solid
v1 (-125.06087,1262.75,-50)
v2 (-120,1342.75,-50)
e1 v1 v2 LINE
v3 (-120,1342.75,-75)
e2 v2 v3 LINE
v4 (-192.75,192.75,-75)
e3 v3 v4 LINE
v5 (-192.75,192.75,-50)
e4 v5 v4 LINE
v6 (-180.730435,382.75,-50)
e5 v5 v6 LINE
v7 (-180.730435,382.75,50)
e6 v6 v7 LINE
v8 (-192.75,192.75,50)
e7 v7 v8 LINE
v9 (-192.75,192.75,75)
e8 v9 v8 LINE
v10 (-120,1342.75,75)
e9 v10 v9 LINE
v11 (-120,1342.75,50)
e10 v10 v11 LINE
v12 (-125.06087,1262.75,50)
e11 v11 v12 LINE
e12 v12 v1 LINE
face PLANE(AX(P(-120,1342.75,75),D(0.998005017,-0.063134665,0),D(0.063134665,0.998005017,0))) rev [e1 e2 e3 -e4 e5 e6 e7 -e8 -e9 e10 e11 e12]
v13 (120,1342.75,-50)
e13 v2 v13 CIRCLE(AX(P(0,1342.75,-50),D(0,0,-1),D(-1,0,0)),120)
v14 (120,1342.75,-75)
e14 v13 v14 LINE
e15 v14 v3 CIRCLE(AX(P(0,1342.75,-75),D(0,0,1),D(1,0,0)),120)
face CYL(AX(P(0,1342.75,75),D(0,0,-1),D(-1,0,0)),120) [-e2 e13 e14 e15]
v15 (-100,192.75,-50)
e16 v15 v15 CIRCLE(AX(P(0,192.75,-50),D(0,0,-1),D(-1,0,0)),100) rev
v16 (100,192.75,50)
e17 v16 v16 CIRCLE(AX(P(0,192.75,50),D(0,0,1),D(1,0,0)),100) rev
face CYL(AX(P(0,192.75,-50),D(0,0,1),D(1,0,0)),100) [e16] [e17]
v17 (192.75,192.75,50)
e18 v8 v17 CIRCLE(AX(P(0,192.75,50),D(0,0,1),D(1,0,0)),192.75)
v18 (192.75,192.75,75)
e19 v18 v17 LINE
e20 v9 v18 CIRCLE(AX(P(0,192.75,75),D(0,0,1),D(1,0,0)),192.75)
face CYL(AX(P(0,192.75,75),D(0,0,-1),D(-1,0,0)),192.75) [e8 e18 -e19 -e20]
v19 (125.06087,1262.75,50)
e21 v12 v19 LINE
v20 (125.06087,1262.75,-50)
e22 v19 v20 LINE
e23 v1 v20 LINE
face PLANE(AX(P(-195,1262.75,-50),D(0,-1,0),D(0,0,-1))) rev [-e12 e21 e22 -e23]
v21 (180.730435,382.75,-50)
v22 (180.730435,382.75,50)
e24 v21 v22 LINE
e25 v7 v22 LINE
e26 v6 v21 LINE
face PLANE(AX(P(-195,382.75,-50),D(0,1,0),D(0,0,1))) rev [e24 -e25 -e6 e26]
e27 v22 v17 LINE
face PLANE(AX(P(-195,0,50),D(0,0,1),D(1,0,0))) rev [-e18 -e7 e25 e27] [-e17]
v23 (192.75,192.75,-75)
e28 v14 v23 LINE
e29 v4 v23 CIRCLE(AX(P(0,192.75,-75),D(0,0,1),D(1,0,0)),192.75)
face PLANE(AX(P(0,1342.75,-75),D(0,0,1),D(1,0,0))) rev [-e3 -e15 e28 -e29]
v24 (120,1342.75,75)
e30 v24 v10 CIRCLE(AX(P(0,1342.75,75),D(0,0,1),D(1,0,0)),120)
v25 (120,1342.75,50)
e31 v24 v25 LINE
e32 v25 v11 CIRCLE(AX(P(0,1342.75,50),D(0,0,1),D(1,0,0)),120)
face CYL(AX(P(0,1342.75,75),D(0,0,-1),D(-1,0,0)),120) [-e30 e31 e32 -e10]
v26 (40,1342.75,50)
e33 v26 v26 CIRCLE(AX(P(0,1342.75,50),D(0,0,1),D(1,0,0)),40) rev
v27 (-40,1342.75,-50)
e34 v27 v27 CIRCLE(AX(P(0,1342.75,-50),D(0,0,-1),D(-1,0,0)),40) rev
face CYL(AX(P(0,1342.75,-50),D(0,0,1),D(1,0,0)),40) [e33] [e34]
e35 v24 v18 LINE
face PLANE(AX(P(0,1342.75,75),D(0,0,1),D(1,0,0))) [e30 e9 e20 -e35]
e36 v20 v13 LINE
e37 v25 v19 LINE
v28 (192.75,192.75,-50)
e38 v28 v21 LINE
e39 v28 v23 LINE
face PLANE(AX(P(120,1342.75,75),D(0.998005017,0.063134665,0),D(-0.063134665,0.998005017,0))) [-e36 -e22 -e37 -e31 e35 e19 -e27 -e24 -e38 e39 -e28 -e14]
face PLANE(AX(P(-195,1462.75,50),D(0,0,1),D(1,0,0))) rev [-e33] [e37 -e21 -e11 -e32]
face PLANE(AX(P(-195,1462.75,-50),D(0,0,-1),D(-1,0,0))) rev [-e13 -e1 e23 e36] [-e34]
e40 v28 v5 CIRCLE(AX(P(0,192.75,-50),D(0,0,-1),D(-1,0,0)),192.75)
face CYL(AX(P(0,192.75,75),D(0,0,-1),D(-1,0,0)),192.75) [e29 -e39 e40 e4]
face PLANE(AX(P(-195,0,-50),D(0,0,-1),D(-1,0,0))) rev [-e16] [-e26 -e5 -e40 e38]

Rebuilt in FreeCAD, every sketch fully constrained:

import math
import FreeCAD as App
import Part
import Sketcher
Q = App.Units.Quantity

doc = App.newDocument("Part")
body = doc.addObject("PartDesign::Body", "Body")

# Sketch on XY plane
sketch1 = body.newObject("Sketcher::SketchObject", "Sketch")
sketch1.AttachmentSupport = (doc.getObject("XY_Plane"), [""])
sketch1.MapMode = "FlatFace"
sketch1.addGeometry(Part.LineSegment(App.Vector(193, 193, 0), App.Vector(120, 1343, 0)), False)
sketch1.addGeometry(Part.ArcOfCircle(Part.Circle(App.Vector(0, 1343, 0), App.Vector(0, 0, 1), 120), math.radians(0), math.radians(180)), False)
sketch1.addGeometry(Part.LineSegment(App.Vector(-120, 1343, 0), App.Vector(-193, 193, 0)), False)
sketch1.addGeometry(Part.ArcOfCircle(Part.Circle(App.Vector(0, 193, 0), App.Vector(0, 0, 1), 193), math.radians(180), math.radians(360)), False)
sketch1.addConstraint(Sketcher.Constraint("Coincident", 0, 2, 1, 1))
sketch1.addConstraint(Sketcher.Constraint("Coincident", 1, 2, 2, 1))
sketch1.addConstraint(Sketcher.Constraint("Coincident", 2, 2, 3, 1))
sketch1.addConstraint(Sketcher.Constraint("Coincident", 3, 2, 0, 1))
sketch1.addConstraint(Sketcher.Constraint("Symmetric", 0, 2, 1, 2, -2))
sketch1.addConstraint(Sketcher.Constraint("Symmetric", 2, 2, 3, 2, -2))
sketch1.addConstraint(Sketcher.Constraint("Horizontal", 1, 3, 0, 2))
sketch1.addConstraint(Sketcher.Constraint("Horizontal", 3, 3, 2, 2))
sketch1.addConstraint(Sketcher.Constraint("Radius", 1, Q("120 mm")))
sketch1.addConstraint(Sketcher.Constraint("Radius", 3, Q("192.75 mm")))
sketch1.addConstraint(Sketcher.Constraint("DistanceY", 3, 3, 1, 3, Q("1150 mm")))
sketch1.addConstraint(Sketcher.Constraint("DistanceY", -1, 1, 1, 3, Q("1342.75 mm")))
pad1 = body.newObject("PartDesign::Pad", "Pad")
pad1.Profile = sketch1
pad1.Length = 150
pad1.Midplane = True

# Sketch on YZ plane
sketch2 = body.newObject("Sketcher::SketchObject", "Sketch001")
sketch2.AttachmentSupport = (doc.getObject("YZ_Plane"), [""])
sketch2.MapMode = "FlatFace"
sketch2.addGeometry(Part.LineSegment(App.Vector(383, 50, 0), App.Vector(0, 50, 0)), False)
sketch2.addGeometry(Part.LineSegment(App.Vector(0, 50, 0), App.Vector(0, -50, 0)), False)
sketch2.addGeometry(Part.LineSegment(App.Vector(0, -50, 0), App.Vector(383, -50, 0)), False)
sketch2.addGeometry(Part.LineSegment(App.Vector(383, -50, 0), App.Vector(383, 50, 0)), False)
sketch2.addGeometry(Part.LineSegment(App.Vector(1463, 50, 0), App.Vector(1263, 50, 0)), False)
sketch2.addGeometry(Part.LineSegment(App.Vector(1263, 50, 0), App.Vector(1263, -50, 0)), False)
sketch2.addGeometry(Part.LineSegment(App.Vector(1263, -50, 0), App.Vector(1463, -50, 0)), False)
sketch2.addGeometry(Part.LineSegment(App.Vector(1463, -50, 0), App.Vector(1463, 50, 0)), False)
sketch2.addConstraint(Sketcher.Constraint("Coincident", 0, 2, 1, 1))
sketch2.addConstraint(Sketcher.Constraint("Coincident", 1, 2, 2, 1))
sketch2.addConstraint(Sketcher.Constraint("Coincident", 2, 2, 3, 1))
sketch2.addConstraint(Sketcher.Constraint("Coincident", 3, 2, 0, 1))
sketch2.addConstraint(Sketcher.Constraint("Coincident", 4, 2, 5, 1))
sketch2.addConstraint(Sketcher.Constraint("Coincident", 5, 2, 6, 1))
sketch2.addConstraint(Sketcher.Constraint("Coincident", 6, 2, 7, 1))
sketch2.addConstraint(Sketcher.Constraint("Coincident", 7, 2, 4, 1))
sketch2.addConstraint(Sketcher.Constraint("Horizontal", 0))
sketch2.addConstraint(Sketcher.Constraint("Vertical", 1))
sketch2.addConstraint(Sketcher.Constraint("Horizontal", 2))
sketch2.addConstraint(Sketcher.Constraint("Vertical", 3))
sketch2.addConstraint(Sketcher.Constraint("Horizontal", 4))
sketch2.addConstraint(Sketcher.Constraint("Vertical", 5))
sketch2.addConstraint(Sketcher.Constraint("Horizontal", 6))
sketch2.addConstraint(Sketcher.Constraint("Vertical", 7))
sketch2.addConstraint(Sketcher.Constraint("Symmetric", 0, 2, 1, 2, -1, 1))
sketch2.addConstraint(Sketcher.Constraint("Horizontal", 3, 2, 4, 2))
sketch2.addConstraint(Sketcher.Constraint("Horizontal", 2, 2, 5, 2))
sketch2.addConstraint(Sketcher.Constraint("DistanceX", 4, 2, 4, 1, Q("200 mm")))
sketch2.addConstraint(Sketcher.Constraint("DistanceY", 1, 2, 1, 1, Q("100 mm")))
sketch2.addConstraint(Sketcher.Constraint("DistanceX", 3, 2, 4, 2, Q("880 mm")))
sketch2.addConstraint(Sketcher.Constraint("DistanceX", 0, 2, 0, 1, Q("382.75 mm")))
pocket1 = body.newObject("PartDesign::Pocket", "Pocket")
pocket1.Profile = sketch2
pocket1.Length = 390
pocket1.Midplane = True

# Sketch on XY plane
sketch3 = body.newObject("Sketcher::SketchObject", "Sketch002")
sketch3.AttachmentSupport = (doc.getObject("XY_Plane"), [""])
sketch3.MapMode = "FlatFace"
sketch3.AttachmentOffset = App.Placement(App.Vector(0, 0, 50), App.Rotation())
sketch3.addGeometry(Part.Circle(App.Vector(0, 1343, 0), App.Vector(0, 0, 1), 40), False)
sketch3.addConstraint(Sketcher.Constraint("PointOnObject", 0, 3, -2))
sketch3.addConstraint(Sketcher.Constraint("Diameter", 0, Q("80 mm")))
sketch3.addConstraint(Sketcher.Constraint("DistanceY", -1, 1, 0, 3, Q("1342.75 mm")))
pad2 = body.newObject("PartDesign::Pad", "Pad001")
pad2.Profile = sketch3
pad2.Length = 100
pad2.Reversed = True

# Sketch on XY plane
sketch4 = body.newObject("Sketcher::SketchObject", "Sketch003")
sketch4.AttachmentSupport = (doc.getObject("XY_Plane"), [""])
sketch4.MapMode = "FlatFace"
sketch4.AttachmentOffset = App.Placement(App.Vector(0, 0, 50), App.Rotation())
sketch4.addGeometry(Part.Circle(App.Vector(0, 193, 0), App.Vector(0, 0, 1), 100), False)
sketch4.addConstraint(Sketcher.Constraint("PointOnObject", 0, 3, -2))
sketch4.addConstraint(Sketcher.Constraint("Diameter", 0, Q("200 mm")))
sketch4.addConstraint(Sketcher.Constraint("DistanceY", -1, 1, 0, 3, Q("192.75 mm")))
pad3 = body.newObject("PartDesign::Pad", "Pad002")
pad3.Profile = sketch4
pad3.Length = 100
pad3.Reversed = True

doc.recompute()
